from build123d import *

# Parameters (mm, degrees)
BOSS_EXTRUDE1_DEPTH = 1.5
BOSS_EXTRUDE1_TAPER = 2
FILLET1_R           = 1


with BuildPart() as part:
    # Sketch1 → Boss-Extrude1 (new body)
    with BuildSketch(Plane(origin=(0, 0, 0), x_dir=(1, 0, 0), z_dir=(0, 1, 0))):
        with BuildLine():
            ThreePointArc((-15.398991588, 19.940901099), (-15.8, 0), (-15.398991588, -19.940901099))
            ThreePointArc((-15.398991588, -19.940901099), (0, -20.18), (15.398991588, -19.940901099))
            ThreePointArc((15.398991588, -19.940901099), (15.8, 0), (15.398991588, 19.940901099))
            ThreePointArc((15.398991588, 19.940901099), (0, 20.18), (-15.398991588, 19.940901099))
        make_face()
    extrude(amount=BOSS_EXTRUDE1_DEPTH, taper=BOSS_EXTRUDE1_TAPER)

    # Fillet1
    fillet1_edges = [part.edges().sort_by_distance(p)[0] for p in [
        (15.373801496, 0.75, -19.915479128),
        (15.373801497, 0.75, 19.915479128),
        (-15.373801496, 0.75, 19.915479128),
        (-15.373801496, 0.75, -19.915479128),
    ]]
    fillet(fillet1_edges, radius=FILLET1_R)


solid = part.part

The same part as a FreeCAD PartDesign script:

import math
import FreeCAD as App
import Part
import Sketcher

V = App.Vector
Q = App.Units.Quantity


def edges_at(feature, points):
    """Names of the edges that pass closest to the given points."""
    edges = feature.Shape.Edges
    near = lambda p: min(range(len(edges)), key=lambda i: edges[i].distToShape(Part.Vertex(*p))[0])
    return sorted({f"Edge{near(p) + 1}" for p in points})

doc = App.newDocument("Part")
body = doc.addObject("PartDesign::Body", "Body")

# Sketch on XZ plane
sketch1 = body.newObject("Sketcher::SketchObject", "Sketch")
sketch1.AttachmentSupport = (doc.getObject("XZ_Plane"), [""])
sketch1.MapMode = "FlatFace"
sketch1.addGeometry([
    Part.ArcOfCircle(Part.Circle(V(480, 0, 0), V(0, 0, 1), 496), math.radians(177.7), math.radians(182.3)),
    Part.ArcOfCircle(Part.Circle(V(0, -476, 0), V(0, 0, 1), 496), math.radians(88.22), math.radians(91.78)),
    Part.ArcOfCircle(Part.Circle(V(-480, 0, 0), V(0, 0, 1), 496), math.radians(-2.3), math.radians(2.3)),
    Part.ArcOfCircle(Part.Circle(V(0, 476, 0), V(0, 0, 1), 496), math.radians(-91.78), math.radians(-88.22)),
], False)
sketch1.addConstraint([
    Sketcher.Constraint("Coincident", 0, 1, 1, 2),
    Sketcher.Constraint("Coincident", 1, 1, 2, 2),
    Sketcher.Constraint("Coincident", 2, 1, 3, 2),
    Sketcher.Constraint("Coincident", 3, 1, 0, 2),
    Sketcher.Constraint("Equal", 0, 1),
    Sketcher.Constraint("Equal", 1, 2),
    Sketcher.Constraint("Equal", 2, 3),
    Sketcher.Constraint("Symmetric", 0, 3, 2, 3, -1, 1),
    Sketcher.Constraint("Symmetric", 1, 3, 3, 3, -1, 1),
    Sketcher.Constraint("PointOnObject", 0, 3, -1),
    Sketcher.Constraint("PointOnObject", 1, 3, -2),
    Sketcher.Constraint("Radius", 0, Q("496 mm")),
    Sketcher.Constraint("DistanceX", -1, 1, 0, 3, Q("480.2 mm")),
    Sketcher.Constraint("DistanceY", 1, 3, -1, 1, Q("475.820001 mm")),
])
pad1 = body.newObject("PartDesign::Pad", "Pad")
pad1.Profile = sketch1
pad1.Length = 1.5
pad1.Reversed = True
pad1.TaperAngle = -2
doc.recompute()

fillet = body.newObject("PartDesign::Fillet", "Fillet")
fillet.Base = (pad1, edges_at(pad1, [
    (15.374, 0.75, -19.915),
    (15.374, 0.75, 19.915),
    (-15.374, 0.75, 19.915),
    (-15.374, 0.75, -19.915),
]))
fillet.Radius = 1

doc.recompute()
